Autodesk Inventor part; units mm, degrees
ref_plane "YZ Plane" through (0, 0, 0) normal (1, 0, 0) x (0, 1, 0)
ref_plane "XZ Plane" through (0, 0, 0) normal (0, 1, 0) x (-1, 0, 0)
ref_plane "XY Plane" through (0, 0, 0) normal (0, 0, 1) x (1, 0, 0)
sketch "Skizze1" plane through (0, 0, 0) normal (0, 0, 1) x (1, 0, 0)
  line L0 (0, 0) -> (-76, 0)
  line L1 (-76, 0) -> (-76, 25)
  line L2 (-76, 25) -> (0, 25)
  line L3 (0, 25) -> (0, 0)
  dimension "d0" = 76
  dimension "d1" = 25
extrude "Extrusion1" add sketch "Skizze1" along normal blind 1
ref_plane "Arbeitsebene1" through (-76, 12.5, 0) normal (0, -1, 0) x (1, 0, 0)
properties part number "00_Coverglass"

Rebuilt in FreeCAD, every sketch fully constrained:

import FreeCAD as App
import Part
import Sketcher
from FreeCAD import Vector


def add_polygon(sketch, points):
    """Adds a closed chain of lines whose ends are joined by coincident constraints."""
    first, n = sketch.GeometryCount, len(points)
    for a, b in zip(points, points[1:] + points[:1]):
        sketch.addGeometry(Part.LineSegment(App.Vector(*a, 0), App.Vector(*b, 0)), False)
    for i in range(n):
        sketch.addConstraint(Sketcher.Constraint("Coincident", first + i, 2, first + (i + 1) % n, 1))

doc = App.newDocument("Part")
body = doc.addObject("PartDesign::Body", "Body")

# Sketch on XY plane
sketch1 = body.newObject("Sketcher::SketchObject", "Sketch")
sketch1.AttachmentSupport = (doc.getObject("XY_Plane"), [""])
sketch1.MapMode = "FlatFace"
add_polygon(sketch1, [(-76, 0), (0, 0), (0, 25), (-76, 25)])  # lines 0-3
sketch1.addConstraint([
    Sketcher.Constraint("Horizontal", 0),
    Sketcher.Constraint("Vertical", 1),
    Sketcher.Constraint("Horizontal", 2),
    Sketcher.Constraint("Vertical", 3),
    Sketcher.Constraint("Coincident", 0, 2, -1, 1),
    Sketcher.Constraint("DistanceX", 0, 1, 0, 2, 76.0),
    Sketcher.Constraint("DistanceY", 1, 1, 1, 2, 25.0),
])
pad1 = body.newObject("PartDesign::Pad", "Pad")
pad1.Profile = sketch1
pad1.Length = 1

doc.recompute()
